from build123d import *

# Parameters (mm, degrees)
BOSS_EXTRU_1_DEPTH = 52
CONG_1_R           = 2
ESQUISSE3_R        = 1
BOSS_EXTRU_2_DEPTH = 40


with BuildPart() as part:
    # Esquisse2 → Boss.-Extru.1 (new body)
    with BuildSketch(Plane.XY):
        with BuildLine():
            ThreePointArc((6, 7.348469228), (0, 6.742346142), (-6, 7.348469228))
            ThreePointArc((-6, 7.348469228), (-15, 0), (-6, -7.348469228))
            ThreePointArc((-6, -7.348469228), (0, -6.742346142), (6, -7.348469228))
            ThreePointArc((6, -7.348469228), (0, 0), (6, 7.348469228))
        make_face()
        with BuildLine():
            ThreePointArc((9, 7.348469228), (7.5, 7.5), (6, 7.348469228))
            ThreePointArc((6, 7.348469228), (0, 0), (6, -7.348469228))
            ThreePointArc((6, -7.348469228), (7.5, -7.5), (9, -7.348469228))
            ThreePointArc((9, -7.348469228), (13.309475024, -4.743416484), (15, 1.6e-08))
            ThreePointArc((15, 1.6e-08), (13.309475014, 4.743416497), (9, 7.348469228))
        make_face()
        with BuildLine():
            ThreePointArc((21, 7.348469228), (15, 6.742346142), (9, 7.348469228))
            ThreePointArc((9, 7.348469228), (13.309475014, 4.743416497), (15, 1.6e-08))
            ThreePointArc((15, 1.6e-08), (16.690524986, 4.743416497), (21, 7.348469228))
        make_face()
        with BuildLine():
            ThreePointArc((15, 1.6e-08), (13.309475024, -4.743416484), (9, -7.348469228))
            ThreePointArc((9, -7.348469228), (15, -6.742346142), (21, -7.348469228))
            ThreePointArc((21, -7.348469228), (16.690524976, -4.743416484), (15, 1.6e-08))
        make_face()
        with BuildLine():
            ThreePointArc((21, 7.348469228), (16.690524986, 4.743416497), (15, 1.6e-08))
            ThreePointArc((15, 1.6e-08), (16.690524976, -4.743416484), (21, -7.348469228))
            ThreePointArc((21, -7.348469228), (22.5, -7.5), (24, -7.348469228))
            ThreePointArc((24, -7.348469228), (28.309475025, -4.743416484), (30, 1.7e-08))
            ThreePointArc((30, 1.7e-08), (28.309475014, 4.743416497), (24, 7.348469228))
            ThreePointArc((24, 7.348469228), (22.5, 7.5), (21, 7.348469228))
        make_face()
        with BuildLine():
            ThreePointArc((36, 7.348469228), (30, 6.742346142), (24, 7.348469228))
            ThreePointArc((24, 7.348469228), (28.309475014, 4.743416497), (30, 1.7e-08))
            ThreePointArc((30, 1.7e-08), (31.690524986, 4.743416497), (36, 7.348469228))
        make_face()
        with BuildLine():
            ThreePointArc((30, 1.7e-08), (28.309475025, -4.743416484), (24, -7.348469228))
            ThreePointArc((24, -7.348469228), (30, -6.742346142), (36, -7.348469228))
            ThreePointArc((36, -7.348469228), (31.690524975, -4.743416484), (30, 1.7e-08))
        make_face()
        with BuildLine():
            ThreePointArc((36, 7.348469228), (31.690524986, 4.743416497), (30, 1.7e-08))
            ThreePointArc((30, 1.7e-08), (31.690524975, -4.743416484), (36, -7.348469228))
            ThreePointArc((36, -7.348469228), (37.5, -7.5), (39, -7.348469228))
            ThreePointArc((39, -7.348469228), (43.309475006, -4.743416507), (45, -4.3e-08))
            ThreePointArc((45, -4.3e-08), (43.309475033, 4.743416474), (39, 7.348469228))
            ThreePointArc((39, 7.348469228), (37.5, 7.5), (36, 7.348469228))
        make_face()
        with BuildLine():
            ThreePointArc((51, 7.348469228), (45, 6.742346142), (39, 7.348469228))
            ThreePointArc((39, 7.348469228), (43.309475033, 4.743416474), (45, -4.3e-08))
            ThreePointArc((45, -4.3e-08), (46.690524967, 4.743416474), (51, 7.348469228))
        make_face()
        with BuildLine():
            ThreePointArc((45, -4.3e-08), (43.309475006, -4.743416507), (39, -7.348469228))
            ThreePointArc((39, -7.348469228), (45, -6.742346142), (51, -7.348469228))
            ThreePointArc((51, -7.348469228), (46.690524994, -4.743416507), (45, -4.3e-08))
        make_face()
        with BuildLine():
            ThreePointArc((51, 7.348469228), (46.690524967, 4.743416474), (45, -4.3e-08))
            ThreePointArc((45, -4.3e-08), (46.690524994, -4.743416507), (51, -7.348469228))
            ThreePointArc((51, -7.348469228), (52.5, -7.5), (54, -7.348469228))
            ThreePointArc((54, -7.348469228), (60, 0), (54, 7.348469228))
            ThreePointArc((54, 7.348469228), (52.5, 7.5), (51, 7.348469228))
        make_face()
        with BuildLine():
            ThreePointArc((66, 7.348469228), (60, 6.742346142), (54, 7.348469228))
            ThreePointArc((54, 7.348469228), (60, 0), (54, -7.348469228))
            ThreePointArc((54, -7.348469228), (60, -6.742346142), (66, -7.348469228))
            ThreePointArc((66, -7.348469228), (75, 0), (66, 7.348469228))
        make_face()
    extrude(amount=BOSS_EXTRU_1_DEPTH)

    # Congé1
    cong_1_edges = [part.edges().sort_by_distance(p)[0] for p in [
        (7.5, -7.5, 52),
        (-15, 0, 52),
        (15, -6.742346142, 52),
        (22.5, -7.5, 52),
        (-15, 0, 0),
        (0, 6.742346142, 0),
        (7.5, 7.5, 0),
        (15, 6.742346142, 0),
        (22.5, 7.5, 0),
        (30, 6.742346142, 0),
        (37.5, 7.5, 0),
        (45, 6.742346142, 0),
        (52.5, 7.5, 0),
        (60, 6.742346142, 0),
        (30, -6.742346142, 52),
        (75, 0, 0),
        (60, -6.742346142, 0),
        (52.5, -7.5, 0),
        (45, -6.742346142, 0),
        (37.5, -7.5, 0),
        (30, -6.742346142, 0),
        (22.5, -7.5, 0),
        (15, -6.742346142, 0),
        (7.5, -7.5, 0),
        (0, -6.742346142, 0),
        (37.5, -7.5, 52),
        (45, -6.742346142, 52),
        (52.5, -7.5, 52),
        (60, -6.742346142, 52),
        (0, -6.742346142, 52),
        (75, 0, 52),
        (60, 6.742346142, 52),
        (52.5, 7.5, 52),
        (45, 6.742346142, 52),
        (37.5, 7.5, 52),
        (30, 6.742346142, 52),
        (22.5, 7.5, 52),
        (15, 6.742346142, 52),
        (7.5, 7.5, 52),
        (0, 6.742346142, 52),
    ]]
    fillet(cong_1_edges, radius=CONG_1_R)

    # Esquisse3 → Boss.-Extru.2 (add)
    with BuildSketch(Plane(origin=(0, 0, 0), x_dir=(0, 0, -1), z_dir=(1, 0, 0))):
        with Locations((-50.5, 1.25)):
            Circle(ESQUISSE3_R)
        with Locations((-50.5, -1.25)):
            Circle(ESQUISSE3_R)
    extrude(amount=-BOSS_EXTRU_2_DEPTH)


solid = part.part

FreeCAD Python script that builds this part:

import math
import FreeCAD as App
import Part
import Sketcher
from FreeCAD import Vector
Q = App.Units.Quantity


def edges_at(feature, points):
    """Names of the edges that pass closest to the given points."""
    edges = feature.Shape.Edges
    near = lambda p: min(range(len(edges)), key=lambda i: edges[i].distToShape(Part.Vertex(*p))[0])
    return sorted({f"Edge{near(p) + 1}" for p in points})

doc = App.newDocument("Part")
body = doc.addObject("PartDesign::Body", "Body")

# Sketch on XY plane
sketch1 = body.newObject("Sketcher::SketchObject", "Sketch")
sketch1.AttachmentSupport = (doc.getObject("XY_Plane"), [""])
sketch1.MapMode = "FlatFace"
sketch1.addGeometry(Part.ArcOfCircle(Part.Circle(Vector(0, 36.7, 0), Vector(0, 0, 1), 30), math.radians(-102), math.radians(-78)), False)
sketch1.addGeometry(Part.ArcOfCircle(Part.Circle(Vector(-7.5, 0, 0), Vector(0, 0, 1), 7.5), math.radians(78), math.radians(282)), False)
sketch1.addGeometry(Part.ArcOfCircle(Part.Circle(Vector(0, -36.7, 0), Vector(0, 0, 1), 30), math.radians(78), math.radians(102)), False)
sketch1.addGeometry(Part.ArcOfCircle(Part.Circle(Vector(7.5, 0, 0), Vector(0, 0, 1), 7.5), math.radians(-102), math.radians(-78)), False)
sketch1.addGeometry(Part.ArcOfCircle(Part.Circle(Vector(15, -36.7, 0), Vector(0, 0, 1), 30), math.radians(78), math.radians(102)), False)
sketch1.addGeometry(Part.ArcOfCircle(Part.Circle(Vector(22.5, 0, 0), Vector(0, 0, 1), 7.5), math.radians(-102), math.radians(-78)), False)
sketch1.addGeometry(Part.ArcOfCircle(Part.Circle(Vector(30, -36.7, 0), Vector(0, 0, 1), 30), math.radians(78), math.radians(102)), False)
sketch1.addGeometry(Part.ArcOfCircle(Part.Circle(Vector(37.5, 0, 0), Vector(0, 0, 1), 7.5), math.radians(-102), math.radians(-78)), False)
sketch1.addGeometry(Part.ArcOfCircle(Part.Circle(Vector(45, -36.7, 0), Vector(0, 0, 1), 30), math.radians(78), math.radians(102)), False)
sketch1.addGeometry(Part.ArcOfCircle(Part.Circle(Vector(52.5, 0, 0), Vector(0, 0, 1), 7.5), math.radians(-102), math.radians(-78)), False)
sketch1.addGeometry(Part.ArcOfCircle(Part.Circle(Vector(60, -36.7, 0), Vector(0, 0, 1), 30), math.radians(78), math.radians(102)), False)
sketch1.addGeometry(Part.ArcOfCircle(Part.Circle(Vector(67.5, 0, 0), Vector(0, 0, 1), 7.5), math.radians(-102), math.radians(102)), False)
sketch1.addGeometry(Part.ArcOfCircle(Part.Circle(Vector(60, 36.7, 0), Vector(0, 0, 1), 30), math.radians(-102), math.radians(-78)), False)
sketch1.addGeometry(Part.ArcOfCircle(Part.Circle(Vector(52.5, 0, 0), Vector(0, 0, 1), 7.5), math.radians(78), math.radians(102)), False)
sketch1.addGeometry(Part.ArcOfCircle(Part.Circle(Vector(45, 36.7, 0), Vector(0, 0, 1), 30), math.radians(-102), math.radians(-78)), False)
sketch1.addGeometry(Part.ArcOfCircle(Part.Circle(Vector(37.5, 0, 0), Vector(0, 0, 1), 7.5), math.radians(78), math.radians(102)), False)
sketch1.addGeometry(Part.ArcOfCircle(Part.Circle(Vector(30, 36.7, 0), Vector(0, 0, 1), 30), math.radians(-102), math.radians(-78)), False)
sketch1.addGeometry(Part.ArcOfCircle(Part.Circle(Vector(22.5, 0, 0), Vector(0, 0, 1), 7.5), math.radians(78), math.radians(102)), False)
sketch1.addGeometry(Part.ArcOfCircle(Part.Circle(Vector(15, 36.7, 0), Vector(0, 0, 1), 30), math.radians(-102), math.radians(-78)), False)
sketch1.addGeometry(Part.ArcOfCircle(Part.Circle(Vector(7.5, 0, 0), Vector(0, 0, 1), 7.5), math.radians(78), math.radians(102)), False)
sketch1.addConstraint(Sketcher.Constraint("Tangent", 0, 1, 1, 1))
sketch1.addConstraint(Sketcher.Constraint("Tangent", 1, 2, 2, 2))
sketch1.addConstraint(Sketcher.Constraint("Tangent", 2, 1, 3, 1))
sketch1.addConstraint(Sketcher.Constraint("Tangent", 3, 2, 4, 2))
sketch1.addConstraint(Sketcher.Constraint("Tangent", 4, 1, 5, 1))
sketch1.addConstraint(Sketcher.Constraint("Tangent", 5, 2, 6, 2))
sketch1.addConstraint(Sketcher.Constraint("Tangent", 6, 1, 7, 1))
sketch1.addConstraint(Sketcher.Constraint("Tangent", 7, 2, 8, 2))
sketch1.addConstraint(Sketcher.Constraint("Tangent", 8, 1, 9, 1))
sketch1.addConstraint(Sketcher.Constraint("Tangent", 9, 2, 10, 2))
sketch1.addConstraint(Sketcher.Constraint("Tangent", 10, 1, 11, 1))
sketch1.addConstraint(Sketcher.Constraint("Tangent", 11, 2, 12, 2))
sketch1.addConstraint(Sketcher.Constraint("Tangent", 12, 1, 13, 1))
sketch1.addConstraint(Sketcher.Constraint("Tangent", 13, 2, 14, 2))
sketch1.addConstraint(Sketcher.Constraint("Tangent", 14, 1, 15, 1))
sketch1.addConstraint(Sketcher.Constraint("Tangent", 15, 2, 16, 2))
sketch1.addConstraint(Sketcher.Constraint("Tangent", 16, 1, 17, 1))
sketch1.addConstraint(Sketcher.Constraint("Tangent", 17, 2, 18, 2))
sketch1.addConstraint(Sketcher.Constraint("Tangent", 18, 1, 19, 1))
sketch1.addConstraint(Sketcher.Constraint("Tangent", 19, 2, 0, 2))
sketch1.addConstraint(Sketcher.Constraint("Coincident", 13, 3, 9, 3))
sketch1.addConstraint(Sketcher.Constraint("Coincident", 15, 3, 7, 3))
sketch1.addConstraint(Sketcher.Constraint("Coincident", 17, 3, 5, 3))
sketch1.addConstraint(Sketcher.Constraint("Coincident", 19, 3, 3, 3))
sketch1.addConstraint(Sketcher.Constraint("Equal", 0, 2))
sketch1.addConstraint(Sketcher.Constraint("Equal", 1, 3))
sketch1.addConstraint(Sketcher.Constraint("Equal", 2, 4))
sketch1.addConstraint(Sketcher.Constraint("Equal", 3, 5))
sketch1.addConstraint(Sketcher.Constraint("Equal", 4, 6))
sketch1.addConstraint(Sketcher.Constraint("Equal", 5, 7))
sketch1.addConstraint(Sketcher.Constraint("Equal", 6, 8))
sketch1.addConstraint(Sketcher.Constraint("Equal", 7, 9))
sketch1.addConstraint(Sketcher.Constraint("Equal", 8, 10))
sketch1.addConstraint(Sketcher.Constraint("Equal", 9, 11))
sketch1.addConstraint(Sketcher.Constraint("Equal", 10, 12))
sketch1.addConstraint(Sketcher.Constraint("Equal", 11, 13))
sketch1.addConstraint(Sketcher.Constraint("Equal", 12, 14))
sketch1.addConstraint(Sketcher.Constraint("Equal", 13, 15))
sketch1.addConstraint(Sketcher.Constraint("Equal", 14, 16))
sketch1.addConstraint(Sketcher.Constraint("Equal", 15, 17))
sketch1.addConstraint(Sketcher.Constraint("Equal", 16, 18))
sketch1.addConstraint(Sketcher.Constraint("Equal", 17, 19))
sketch1.addConstraint(Sketcher.Constraint("Symmetric", 0, 3, 2, 3, -1, 1))
sketch1.addConstraint(Sketcher.Constraint("Symmetric", 10, 3, 12, 3, -1))
sketch1.addConstraint(Sketcher.Constraint("Symmetric", 6, 3, 16, 3, -1))
sketch1.addConstraint(Sketcher.Constraint("PointOnObject", 0, 3, -2))
sketch1.addConstraint(Sketcher.Constraint("Horizontal", 2, 3, 4, 3))
sketch1.addConstraint(Sketcher.Constraint("Horizontal", 4, 3, 6, 3))
sketch1.addConstraint(Sketcher.Constraint("Horizontal", 6, 3, 8, 3))
sketch1.addConstraint(Sketcher.Constraint("Horizontal", 8, 3, 10, 3))
sketch1.addConstraint(Sketcher.Constraint("Radius", 0, Q("30 mm")))
sketch1.addConstraint(Sketcher.Constraint("Radius", 1, Q("7.5 mm")))
sketch1.addConstraint(Sketcher.Constraint("DistanceX", -1, 1, 4, 3, Q("15 mm")))
pad1 = body.newObject("PartDesign::Pad", "Pad")
pad1.Profile = sketch1
pad1.Length = 52
doc.recompute()

fillet = body.newObject("PartDesign::Fillet", "Fillet")
fillet.Base = (pad1, edges_at(pad1, [
    (7.5, -7.5, 52),
    (-15, 0, 52),
    (15, -6.742, 52),
    (22.5, -7.5, 52),
    (-15, 0, 0),
    (0, 6.742, 0),
    (7.5, 7.5, 0),
    (15, 6.742, 0),
    (22.5, 7.5, 0),
    (30, 6.742, 0),
    (37.5, 7.5, 0),
    (45, 6.742, 0),
    (52.5, 7.5, 0),
    (60, 6.742, 0),
    (30, -6.742, 52),
    (75, 0, 0),
    (60, -6.742, 0),
    (52.5, -7.5, 0),
    (45, -6.742, 0),
    (37.5, -7.5, 0),
    (30, -6.742, 0),
    (22.5, -7.5, 0),
    (15, -6.742, 0),
    (7.5, -7.5, 0),
    (0, -6.742, 0),
    (37.5, -7.5, 52),
    (45, -6.742, 52),
    (52.5, -7.5, 52),
    (60, -6.742, 52),
    (0, -6.742, 52),
    (75, 0, 52),
    (60, 6.742, 52),
    (52.5, 7.5, 52),
    (45, 6.742, 52),
    (37.5, 7.5, 52),
    (30, 6.742, 52),
    (22.5, 7.5, 52),
    (15, 6.742, 52),
    (7.5, 7.5, 52),
    (0, 6.742, 52),
]))
fillet.Radius = 2

# Sketch on YZ plane
sketch2 = body.newObject("Sketcher::SketchObject", "Sketch001")
sketch2.AttachmentSupport = (doc.getObject("YZ_Plane"), [""])
sketch2.MapMode = "FlatFace"
sketch2.addGeometry(Part.Circle(Vector(1.2, 50.5, 0), Vector(0, 0, 1), 1), False)
sketch2.addGeometry(Part.Circle(Vector(-1.2, 50.5, 0), Vector(0, 0, 1), 1), False)
sketch2.addConstraint(Sketcher.Constraint("Equal", 0, 1))
sketch2.addConstraint(Sketcher.Constraint("Symmetric", 0, 3, 1, 3, -2))
sketch2.addConstraint(Sketcher.Constraint("Diameter", 0, Q("2 mm")))
sketch2.addConstraint(Sketcher.Constraint("DistanceY", -1, 1, 0, 3, Q("50.5 mm")))
sketch2.addConstraint(Sketcher.Constraint("DistanceX", 1, 3, 0, 3, Q("2.5 mm")))
pad2 = body.newObject("PartDesign::Pad", "Pad001")
pad2.Profile = sketch2
pad2.Length = 40
pad2.Reversed = True

doc.recompute()
